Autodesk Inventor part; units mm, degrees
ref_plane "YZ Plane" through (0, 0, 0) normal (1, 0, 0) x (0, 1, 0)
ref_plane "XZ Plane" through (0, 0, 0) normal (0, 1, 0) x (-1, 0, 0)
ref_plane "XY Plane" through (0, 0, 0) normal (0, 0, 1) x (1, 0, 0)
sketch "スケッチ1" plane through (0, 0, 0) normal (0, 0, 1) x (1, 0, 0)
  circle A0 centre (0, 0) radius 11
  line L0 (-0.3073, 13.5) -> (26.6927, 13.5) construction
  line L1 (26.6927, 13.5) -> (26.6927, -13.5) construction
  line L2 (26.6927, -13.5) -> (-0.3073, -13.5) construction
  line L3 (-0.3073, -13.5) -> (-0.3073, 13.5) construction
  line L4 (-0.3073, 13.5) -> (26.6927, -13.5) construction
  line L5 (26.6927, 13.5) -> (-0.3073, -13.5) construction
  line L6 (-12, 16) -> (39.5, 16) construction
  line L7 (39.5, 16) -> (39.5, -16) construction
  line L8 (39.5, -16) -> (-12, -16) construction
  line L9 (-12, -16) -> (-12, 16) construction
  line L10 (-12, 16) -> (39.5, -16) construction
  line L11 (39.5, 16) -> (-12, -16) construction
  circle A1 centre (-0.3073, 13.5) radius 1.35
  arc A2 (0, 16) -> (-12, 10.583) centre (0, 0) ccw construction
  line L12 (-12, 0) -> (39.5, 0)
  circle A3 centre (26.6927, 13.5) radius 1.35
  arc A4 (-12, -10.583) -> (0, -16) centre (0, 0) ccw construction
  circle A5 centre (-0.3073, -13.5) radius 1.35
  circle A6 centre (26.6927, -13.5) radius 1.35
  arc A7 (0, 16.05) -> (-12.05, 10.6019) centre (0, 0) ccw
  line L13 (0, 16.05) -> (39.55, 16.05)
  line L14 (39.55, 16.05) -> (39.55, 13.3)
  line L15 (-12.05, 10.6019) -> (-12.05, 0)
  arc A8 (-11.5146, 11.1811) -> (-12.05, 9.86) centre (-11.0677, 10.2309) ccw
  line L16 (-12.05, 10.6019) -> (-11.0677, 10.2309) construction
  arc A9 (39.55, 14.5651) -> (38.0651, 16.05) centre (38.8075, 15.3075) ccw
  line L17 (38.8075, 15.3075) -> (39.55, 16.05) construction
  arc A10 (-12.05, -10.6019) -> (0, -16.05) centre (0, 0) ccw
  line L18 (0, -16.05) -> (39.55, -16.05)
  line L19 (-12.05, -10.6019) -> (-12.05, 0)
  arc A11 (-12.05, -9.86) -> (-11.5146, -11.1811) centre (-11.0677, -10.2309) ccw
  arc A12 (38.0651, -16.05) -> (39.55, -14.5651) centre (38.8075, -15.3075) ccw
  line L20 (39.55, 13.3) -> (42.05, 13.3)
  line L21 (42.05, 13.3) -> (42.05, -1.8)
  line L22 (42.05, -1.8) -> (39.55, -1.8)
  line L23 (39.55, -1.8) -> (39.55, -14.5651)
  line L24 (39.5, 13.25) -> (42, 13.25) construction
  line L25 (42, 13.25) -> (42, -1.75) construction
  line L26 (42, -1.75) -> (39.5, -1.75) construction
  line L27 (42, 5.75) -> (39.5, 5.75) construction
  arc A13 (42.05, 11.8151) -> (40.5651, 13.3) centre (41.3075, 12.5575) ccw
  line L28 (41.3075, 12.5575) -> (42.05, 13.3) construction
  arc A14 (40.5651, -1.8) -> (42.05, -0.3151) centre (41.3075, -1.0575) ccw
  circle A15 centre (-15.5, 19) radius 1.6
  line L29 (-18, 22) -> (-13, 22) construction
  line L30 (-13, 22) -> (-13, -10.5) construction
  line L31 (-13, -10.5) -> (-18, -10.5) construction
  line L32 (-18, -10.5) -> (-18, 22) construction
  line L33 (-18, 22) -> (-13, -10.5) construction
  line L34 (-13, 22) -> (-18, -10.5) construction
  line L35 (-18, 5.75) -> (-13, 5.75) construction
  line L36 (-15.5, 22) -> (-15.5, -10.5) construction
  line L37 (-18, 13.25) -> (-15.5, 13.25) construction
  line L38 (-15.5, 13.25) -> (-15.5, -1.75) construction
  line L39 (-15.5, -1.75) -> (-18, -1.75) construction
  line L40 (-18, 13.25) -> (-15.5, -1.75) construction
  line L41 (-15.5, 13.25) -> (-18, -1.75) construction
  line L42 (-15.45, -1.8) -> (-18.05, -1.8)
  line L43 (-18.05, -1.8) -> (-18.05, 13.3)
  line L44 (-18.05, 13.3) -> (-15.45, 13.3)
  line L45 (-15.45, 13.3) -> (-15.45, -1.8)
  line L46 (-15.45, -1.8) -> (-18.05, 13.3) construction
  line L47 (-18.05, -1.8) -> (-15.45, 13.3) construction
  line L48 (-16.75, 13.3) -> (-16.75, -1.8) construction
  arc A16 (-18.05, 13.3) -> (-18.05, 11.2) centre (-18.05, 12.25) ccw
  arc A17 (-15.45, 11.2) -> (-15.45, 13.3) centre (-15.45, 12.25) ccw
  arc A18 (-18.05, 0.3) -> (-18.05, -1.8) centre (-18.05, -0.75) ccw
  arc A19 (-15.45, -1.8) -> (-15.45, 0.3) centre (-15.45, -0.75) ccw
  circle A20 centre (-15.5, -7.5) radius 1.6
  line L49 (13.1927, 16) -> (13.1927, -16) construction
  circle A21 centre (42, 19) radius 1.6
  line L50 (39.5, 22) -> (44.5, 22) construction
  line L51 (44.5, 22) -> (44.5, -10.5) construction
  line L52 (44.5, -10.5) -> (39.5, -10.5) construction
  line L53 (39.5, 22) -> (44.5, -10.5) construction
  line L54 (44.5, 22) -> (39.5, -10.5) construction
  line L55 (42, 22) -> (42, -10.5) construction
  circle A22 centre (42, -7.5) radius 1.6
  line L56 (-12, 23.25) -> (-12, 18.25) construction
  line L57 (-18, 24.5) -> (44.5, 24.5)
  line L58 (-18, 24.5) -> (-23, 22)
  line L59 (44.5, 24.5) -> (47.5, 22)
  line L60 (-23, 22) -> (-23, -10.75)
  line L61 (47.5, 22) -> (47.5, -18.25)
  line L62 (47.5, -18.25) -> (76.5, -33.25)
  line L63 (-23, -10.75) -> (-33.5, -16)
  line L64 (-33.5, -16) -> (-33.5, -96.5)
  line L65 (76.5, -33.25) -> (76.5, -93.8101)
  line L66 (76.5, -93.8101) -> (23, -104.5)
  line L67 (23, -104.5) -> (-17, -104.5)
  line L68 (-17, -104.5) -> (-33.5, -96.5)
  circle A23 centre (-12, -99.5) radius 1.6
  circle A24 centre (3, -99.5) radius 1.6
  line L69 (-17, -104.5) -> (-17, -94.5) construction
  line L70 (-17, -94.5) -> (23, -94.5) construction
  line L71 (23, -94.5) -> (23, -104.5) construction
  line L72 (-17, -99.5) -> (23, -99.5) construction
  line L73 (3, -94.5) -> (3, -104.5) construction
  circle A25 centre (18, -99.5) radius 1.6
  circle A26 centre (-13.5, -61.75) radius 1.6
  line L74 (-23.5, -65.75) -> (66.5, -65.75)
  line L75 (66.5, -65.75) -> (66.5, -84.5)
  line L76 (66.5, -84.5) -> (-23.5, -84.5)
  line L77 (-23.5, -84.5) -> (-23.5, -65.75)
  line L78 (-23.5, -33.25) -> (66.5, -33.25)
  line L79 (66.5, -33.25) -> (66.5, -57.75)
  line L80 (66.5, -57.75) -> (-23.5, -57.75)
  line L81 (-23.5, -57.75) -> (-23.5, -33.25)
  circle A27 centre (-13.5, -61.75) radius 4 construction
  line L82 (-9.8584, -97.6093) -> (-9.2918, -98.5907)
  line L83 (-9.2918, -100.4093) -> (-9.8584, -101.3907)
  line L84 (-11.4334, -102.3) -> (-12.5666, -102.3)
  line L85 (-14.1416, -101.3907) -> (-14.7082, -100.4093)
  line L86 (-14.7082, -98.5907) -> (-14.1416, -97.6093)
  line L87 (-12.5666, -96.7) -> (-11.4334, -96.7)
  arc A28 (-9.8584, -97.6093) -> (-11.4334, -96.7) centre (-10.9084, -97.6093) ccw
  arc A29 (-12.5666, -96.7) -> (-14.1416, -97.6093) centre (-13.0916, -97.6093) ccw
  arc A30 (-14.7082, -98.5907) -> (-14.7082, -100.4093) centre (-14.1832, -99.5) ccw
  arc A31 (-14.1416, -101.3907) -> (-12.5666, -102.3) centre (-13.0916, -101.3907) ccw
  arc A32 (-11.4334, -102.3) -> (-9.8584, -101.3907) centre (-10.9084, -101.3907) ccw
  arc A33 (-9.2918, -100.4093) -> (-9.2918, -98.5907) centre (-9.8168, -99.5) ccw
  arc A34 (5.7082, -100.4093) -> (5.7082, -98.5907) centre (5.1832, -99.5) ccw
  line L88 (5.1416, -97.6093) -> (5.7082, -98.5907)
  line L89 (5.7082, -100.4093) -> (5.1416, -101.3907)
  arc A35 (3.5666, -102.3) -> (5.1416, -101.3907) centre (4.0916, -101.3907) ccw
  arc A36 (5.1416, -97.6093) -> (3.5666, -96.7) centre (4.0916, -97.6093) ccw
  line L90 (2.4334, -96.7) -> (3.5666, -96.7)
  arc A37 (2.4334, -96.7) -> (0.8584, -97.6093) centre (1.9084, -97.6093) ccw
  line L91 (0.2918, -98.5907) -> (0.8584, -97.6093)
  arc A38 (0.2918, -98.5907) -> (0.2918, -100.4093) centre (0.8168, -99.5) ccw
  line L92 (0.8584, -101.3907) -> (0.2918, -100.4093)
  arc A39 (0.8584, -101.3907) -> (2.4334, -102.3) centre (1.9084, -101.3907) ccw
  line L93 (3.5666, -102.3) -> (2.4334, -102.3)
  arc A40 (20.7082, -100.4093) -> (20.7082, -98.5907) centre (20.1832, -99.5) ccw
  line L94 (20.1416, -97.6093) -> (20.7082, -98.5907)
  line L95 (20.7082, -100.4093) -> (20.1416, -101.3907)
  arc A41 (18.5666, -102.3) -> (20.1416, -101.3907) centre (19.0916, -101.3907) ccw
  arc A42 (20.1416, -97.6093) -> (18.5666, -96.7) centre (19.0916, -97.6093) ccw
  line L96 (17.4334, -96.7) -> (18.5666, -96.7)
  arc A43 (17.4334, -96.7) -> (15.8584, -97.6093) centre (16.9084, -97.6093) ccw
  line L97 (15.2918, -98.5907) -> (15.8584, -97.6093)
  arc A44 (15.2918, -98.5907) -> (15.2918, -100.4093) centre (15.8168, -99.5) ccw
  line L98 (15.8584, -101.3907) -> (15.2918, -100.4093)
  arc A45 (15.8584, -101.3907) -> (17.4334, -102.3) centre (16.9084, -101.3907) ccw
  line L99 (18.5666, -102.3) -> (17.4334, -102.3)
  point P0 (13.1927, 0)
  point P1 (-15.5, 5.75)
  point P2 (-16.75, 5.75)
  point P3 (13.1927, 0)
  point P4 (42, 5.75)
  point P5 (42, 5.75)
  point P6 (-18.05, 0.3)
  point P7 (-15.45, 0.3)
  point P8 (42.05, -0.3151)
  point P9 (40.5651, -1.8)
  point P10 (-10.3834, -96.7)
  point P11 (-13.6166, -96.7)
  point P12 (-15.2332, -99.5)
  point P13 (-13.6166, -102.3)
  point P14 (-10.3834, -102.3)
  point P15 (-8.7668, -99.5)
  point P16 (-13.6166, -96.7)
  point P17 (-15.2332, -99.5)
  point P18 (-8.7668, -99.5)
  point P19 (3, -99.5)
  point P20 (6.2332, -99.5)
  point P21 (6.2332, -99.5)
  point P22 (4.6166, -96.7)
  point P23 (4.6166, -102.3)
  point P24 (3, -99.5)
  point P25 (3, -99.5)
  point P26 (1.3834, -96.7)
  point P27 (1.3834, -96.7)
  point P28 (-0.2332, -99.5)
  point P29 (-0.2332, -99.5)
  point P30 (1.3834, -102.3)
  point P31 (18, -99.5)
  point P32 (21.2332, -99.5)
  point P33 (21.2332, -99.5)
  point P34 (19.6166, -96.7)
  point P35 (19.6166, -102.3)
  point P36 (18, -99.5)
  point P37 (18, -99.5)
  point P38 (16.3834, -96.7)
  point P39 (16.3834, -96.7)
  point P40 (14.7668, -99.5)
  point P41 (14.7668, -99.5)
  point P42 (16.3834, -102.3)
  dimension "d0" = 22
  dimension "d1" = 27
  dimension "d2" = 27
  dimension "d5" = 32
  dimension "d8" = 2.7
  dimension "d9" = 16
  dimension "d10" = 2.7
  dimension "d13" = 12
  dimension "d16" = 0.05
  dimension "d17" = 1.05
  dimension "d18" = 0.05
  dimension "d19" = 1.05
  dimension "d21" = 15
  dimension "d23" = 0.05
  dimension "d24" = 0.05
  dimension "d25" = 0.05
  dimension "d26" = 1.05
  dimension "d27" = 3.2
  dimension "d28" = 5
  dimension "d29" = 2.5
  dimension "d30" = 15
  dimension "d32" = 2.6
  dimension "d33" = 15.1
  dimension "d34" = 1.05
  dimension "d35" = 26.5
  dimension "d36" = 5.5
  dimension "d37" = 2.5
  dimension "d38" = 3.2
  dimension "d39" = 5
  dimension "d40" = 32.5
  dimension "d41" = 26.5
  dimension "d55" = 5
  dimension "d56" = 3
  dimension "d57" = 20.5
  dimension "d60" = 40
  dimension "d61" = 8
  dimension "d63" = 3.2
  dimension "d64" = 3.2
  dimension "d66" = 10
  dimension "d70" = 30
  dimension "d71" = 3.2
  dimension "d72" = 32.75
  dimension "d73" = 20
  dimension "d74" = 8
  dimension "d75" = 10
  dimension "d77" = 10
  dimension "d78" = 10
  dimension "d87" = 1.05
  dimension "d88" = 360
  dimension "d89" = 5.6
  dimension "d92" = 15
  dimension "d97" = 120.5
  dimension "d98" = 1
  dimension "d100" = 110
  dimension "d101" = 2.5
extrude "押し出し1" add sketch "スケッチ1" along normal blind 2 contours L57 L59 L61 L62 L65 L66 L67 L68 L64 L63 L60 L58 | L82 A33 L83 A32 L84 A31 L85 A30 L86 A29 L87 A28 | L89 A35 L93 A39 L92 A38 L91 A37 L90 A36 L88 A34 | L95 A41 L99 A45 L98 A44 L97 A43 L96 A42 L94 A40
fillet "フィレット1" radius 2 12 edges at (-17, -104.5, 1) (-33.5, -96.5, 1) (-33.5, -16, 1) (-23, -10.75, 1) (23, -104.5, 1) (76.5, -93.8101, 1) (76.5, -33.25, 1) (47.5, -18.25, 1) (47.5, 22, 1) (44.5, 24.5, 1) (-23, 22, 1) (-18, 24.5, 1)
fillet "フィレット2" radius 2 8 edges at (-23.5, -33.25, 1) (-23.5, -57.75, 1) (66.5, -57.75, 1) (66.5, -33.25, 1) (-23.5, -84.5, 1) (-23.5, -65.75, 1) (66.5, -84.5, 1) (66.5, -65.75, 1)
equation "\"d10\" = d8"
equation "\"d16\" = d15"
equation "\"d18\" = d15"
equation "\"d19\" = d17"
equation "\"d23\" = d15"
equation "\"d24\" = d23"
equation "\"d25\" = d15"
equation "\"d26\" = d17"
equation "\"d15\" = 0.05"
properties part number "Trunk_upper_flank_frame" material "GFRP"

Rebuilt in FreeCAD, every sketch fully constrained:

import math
import FreeCAD as App
import Part
import Sketcher

V = App.Vector
Q = App.Units.Quantity


def edges_at(feature, points):
    """Names of the edges that pass closest to the given points."""
    edges = feature.Shape.Edges
    near = lambda p: min(range(len(edges)), key=lambda i: edges[i].distToShape(Part.Vertex(*p))[0])
    return sorted({f"Edge{near(p) + 1}" for p in points})


def add_polygon(sketch, points):
    """Adds a closed chain of lines whose ends are joined by coincident constraints."""
    first, n = sketch.GeometryCount, len(points)
    for a, b in zip(points, points[1:] + points[:1]):
        sketch.addGeometry(Part.LineSegment(App.Vector(*a, 0), App.Vector(*b, 0)), False)
    for i in range(n):
        sketch.addConstraint(Sketcher.Constraint("Coincident", first + i, 2, first + (i + 1) % n, 1))

doc = App.newDocument("Part")
body = doc.addObject("PartDesign::Body", "Body")

# Sketch on XY plane
sketch1 = doc.addObject("Sketcher::SketchObject", "Sketch")
body.addObject(sketch1)
sketch1.AttachmentSupport = (doc.XY_Plane, [""])
sketch1.MapMode = "FlatFace"
add_polygon(sketch1, [(44.5, 24.5), (-18, 24.5), (-23, 22), (-23, -10.75), (-33.5, -16), (-33.5, -96.5), (-17, -104.5), (23, -104.5), (76.5, -93.8101), (76.5, -33.25), (47.5, -18.25), (47.5, 22)])  # lines 0-11
sketch1.addGeometry(Part.Circle(V(-13.5, -61.75, 0), V(0, 0, 1), 1.6), False)  # 12
add_polygon(sketch1, [(-23.5, -84.5), (-23.5, -65.75), (66.5, -65.75), (66.5, -84.5)])  # lines 13-16
add_polygon(sketch1, [(-23.5, -57.75), (-23.5, -33.25), (66.5, -33.25), (66.5, -57.75)])  # lines 17-20
sketch1.addGeometry(Part.Circle(V(-15.5, -7.5, 0), V(0, 0, 1), 1.6), False)  # 21
sketch1.addGeometry(Part.ArcOfCircle(Part.Circle(V(-15.45, -0.75, 0), V(0, 0, 1), 1.05), math.radians(-90), math.radians(90)), False)  # 22
sketch1.addGeometry(Part.LineSegment(V(-15.45, -1.8, 0), V(-18.05, -1.8, 0)), False)  # 23
sketch1.addGeometry(Part.ArcOfCircle(Part.Circle(V(-18.05, -0.75, 0), V(0, 0, 1), 1.05), math.radians(90), math.radians(270)), False)  # 24
sketch1.addGeometry(Part.LineSegment(V(-18.05, 0.3, 0), V(-18.05, 11.2, 0)), False)  # 25
sketch1.addGeometry(Part.ArcOfCircle(Part.Circle(V(-18.05, 12.25, 0), V(0, 0, 1), 1.05), math.radians(90), math.radians(270)), False)  # 26
sketch1.addGeometry(Part.LineSegment(V(-18.05, 13.3, 0), V(-15.45, 13.3, 0)), False)  # 27
sketch1.addGeometry(Part.ArcOfCircle(Part.Circle(V(-15.45, 12.25, 0), V(0, 0, 1), 1.05), math.radians(-90), math.radians(90)), False)  # 28
sketch1.addGeometry(Part.LineSegment(V(-15.45, 11.2, 0), V(-15.45, 0.3, 0)), False)  # 29
sketch1.addGeometry(Part.Circle(V(-15.5, 19, 0), V(0, 0, 1), 1.6), False)  # 30
sketch1.addGeometry(Part.ArcOfCircle(Part.Circle(V(0, 0, 0), V(0, 0, 1), 16.050009), math.radians(90), math.radians(135.841867)), False)  # 31
sketch1.addGeometry(Part.LineSegment(V(0, 16.05, 0), V(38.0651, 16.05, 0)), False)  # 32
sketch1.addGeometry(Part.ArcOfCircle(Part.Circle(V(38.8075, 15.3075, 0), V(0, 0, 1), 1.049983), math.radians(-44.996141), math.radians(134.996141)), False)  # 33
sketch1.addGeometry(Part.LineSegment(V(39.55, 14.5651, 0), V(39.55, 13.3, 0)), False)  # 34
sketch1.addGeometry(Part.LineSegment(V(39.55, 13.3, 0), V(40.5651, 13.3, 0)), False)  # 35
sketch1.addGeometry(Part.ArcOfCircle(Part.Circle(V(41.3075, 12.5575, 0), V(0, 0, 1), 1.049983), math.radians(-44.996141), math.radians(134.996141)), False)  # 36
sketch1.addGeometry(Part.LineSegment(V(42.05, 11.8151, 0), V(42.05, -0.3151, 0)), False)  # 37
sketch1.addGeometry(Part.ArcOfCircle(Part.Circle(V(41.3075, -1.0575, 0), V(0, 0, 1), 1.049983), math.radians(-134.996141), math.radians(44.996141)), False)  # 38
sketch1.addGeometry(Part.LineSegment(V(40.5651, -1.8, 0), V(39.55, -1.8, 0)), False)  # 39
sketch1.addGeometry(Part.LineSegment(V(39.55, -1.8, 0), V(39.55, -14.5651, 0)), False)  # 40
sketch1.addGeometry(Part.ArcOfCircle(Part.Circle(V(38.8075, -15.3075, 0), V(0, 0, 1), 1.049983), math.radians(-134.996141), math.radians(44.996141)), False)  # 41
sketch1.addGeometry(Part.LineSegment(V(38.0651, -16.05, 0), V(0, -16.05, 0)), False)  # 42
sketch1.addGeometry(Part.ArcOfCircle(Part.Circle(V(0, 0, 0), V(0, 0, 1), 16.05), math.radians(-135.841867), math.radians(-90)), False)  # 43
sketch1.addGeometry(Part.ArcOfCircle(Part.Circle(V(-11.0677, -10.2309, 0), V(0, 0, 1), 1.049991), math.radians(159.314305), math.radians(244.811364)), False)  # 44
sketch1.addGeometry(Part.LineSegment(V(-12.05, -9.86, 0), V(-12.05, 9.86, 0)), False)  # 45
sketch1.addGeometry(Part.ArcOfCircle(Part.Circle(V(-11.0677, 10.2309, 0), V(0, 0, 1), 1.050047), math.radians(115.188636), math.radians(200.685695)), False)  # 46
sketch1.addGeometry(Part.Circle(V(42, -7.5, 0), V(0, 0, 1), 1.6), False)  # 47
sketch1.addGeometry(Part.Circle(V(42, 19, 0), V(0, 0, 1), 1.6), False)  # 48
sketch1.addGeometry(Part.Circle(V(-12, -99.5, 0), V(0, 0, 1), 1.6), False)  # 49
sketch1.addGeometry(Part.Circle(V(3, -99.5, 0), V(0, 0, 1), 1.6), False)  # 50
sketch1.addGeometry(Part.Circle(V(18, -99.5, 0), V(0, 0, 1), 1.6), False)  # 51
sketch1.addConstraint([
    Sketcher.Constraint("Tangent", 22, 1, 23, 1),
    Sketcher.Constraint("Tangent", 23, 2, 24, 2),
    Sketcher.Constraint("Coincident", 24, 1, 25, 1),
    Sketcher.Constraint("Coincident", 25, 2, 26, 2),
    Sketcher.Constraint("Tangent", 26, 1, 27, 1),
    Sketcher.Constraint("Tangent", 27, 2, 28, 2),
    Sketcher.Constraint("Coincident", 28, 1, 29, 1),
    Sketcher.Constraint("Coincident", 29, 2, 22, 2),
    Sketcher.Constraint("Tangent", 31, 1, 32, 1),
    Sketcher.Constraint("Coincident", 32, 2, 33, 2),
    Sketcher.Constraint("Coincident", 33, 1, 34, 1),
    Sketcher.Constraint("Coincident", 34, 2, 35, 1),
    Sketcher.Constraint("Coincident", 35, 2, 36, 2),
    Sketcher.Constraint("Coincident", 36, 1, 37, 1),
    Sketcher.Constraint("Coincident", 37, 2, 38, 2),
    Sketcher.Constraint("Coincident", 38, 1, 39, 1),
    Sketcher.Constraint("Coincident", 39, 2, 40, 1),
    Sketcher.Constraint("Coincident", 40, 2, 41, 2),
    Sketcher.Constraint("Coincident", 41, 1, 42, 1),
    Sketcher.Constraint("Tangent", 42, 2, 43, 2),
    Sketcher.Constraint("Coincident", 43, 1, 44, 2),
    Sketcher.Constraint("Coincident", 44, 1, 45, 1),
    Sketcher.Constraint("Coincident", 45, 2, 46, 2),
    Sketcher.Constraint("Coincident", 46, 1, 31, 2),
    Sketcher.Constraint("Horizontal", 0),
    Sketcher.Constraint("Vertical", 2),
    Sketcher.Constraint("Vertical", 4),
    Sketcher.Constraint("Horizontal", 6),
    Sketcher.Constraint("Vertical", 8),
    Sketcher.Constraint("Vertical", 10),
    Sketcher.Constraint("Vertical", 13),
    Sketcher.Constraint("Horizontal", 14),
    Sketcher.Constraint("Vertical", 15),
    Sketcher.Constraint("Horizontal", 16),
    Sketcher.Constraint("Vertical", 17),
    Sketcher.Constraint("Horizontal", 18),
    Sketcher.Constraint("Vertical", 19),
    Sketcher.Constraint("Horizontal", 20),
    Sketcher.Constraint("Horizontal", 23),
    Sketcher.Constraint("Vertical", 25),
    Sketcher.Constraint("Horizontal", 27),
    Sketcher.Constraint("Vertical", 29),
    Sketcher.Constraint("Horizontal", 32),
    Sketcher.Constraint("Vertical", 34),
    Sketcher.Constraint("Horizontal", 35),
    Sketcher.Constraint("Vertical", 37),
    Sketcher.Constraint("Horizontal", 39),
    Sketcher.Constraint("Vertical", 40),
    Sketcher.Constraint("Horizontal", 42),
    Sketcher.Constraint("Vertical", 45),
    Sketcher.Constraint("Coincident", 31, 3, -1, 1),
    Sketcher.Constraint("Coincident", 43, 3, -1, 1),
    Sketcher.Constraint("Equal", 12, 21),
    Sketcher.Constraint("Equal", 22, 24),
    Sketcher.Constraint("Equal", 24, 26),
    Sketcher.Constraint("Equal", 26, 28),
    Sketcher.Constraint("Equal", 21, 30),
    Sketcher.Constraint("Equal", 28, 33),
    Sketcher.Constraint("Equal", 33, 36),
    Sketcher.Constraint("Equal", 36, 38),
    Sketcher.Constraint("Equal", 38, 41),
    Sketcher.Constraint("Equal", 31, 43),
    Sketcher.Constraint("Equal", 41, 44),
    Sketcher.Constraint("Equal", 44, 46),
    Sketcher.Constraint("Equal", 30, 47),
    Sketcher.Constraint("Equal", 47, 48),
    Sketcher.Constraint("Equal", 48, 49),
    Sketcher.Constraint("Equal", 49, 50),
    Sketcher.Constraint("Equal", 50, 51),
    Sketcher.Constraint("Symmetric", 33, 3, 41, 3, -1),
    Sketcher.Constraint("Symmetric", 44, 3, 46, 3, -1),
    Sketcher.Constraint("Parallel", 1, 3),
    Sketcher.Constraint("Horizontal", 21, 3, 47, 3),
    Sketcher.Constraint("Horizontal", 30, 3, 48, 3),
    Sketcher.Constraint("Horizontal", 49, 3, 50, 3),
    Sketcher.Constraint("Horizontal", 50, 3, 51, 3),
    Sketcher.Constraint("Horizontal", 1, 2, 10, 2),
    Sketcher.Constraint("Horizontal", 8, 2, 17, 2),
    Sketcher.Constraint("Horizontal", 27, 2, 34, 2),
    Sketcher.Constraint("Horizontal", 23, 2, 38, 1),
    Sketcher.Constraint("Vertical", 24, 3, 26, 3),
    Sketcher.Constraint("Vertical", 22, 3, 28, 3),
    Sketcher.Constraint("Vertical", 21, 3, 30, 3),
    Sketcher.Constraint("Vertical", 36, 3, 38, 3),
    Sketcher.Constraint("Vertical", 47, 3, 48, 3),
    Sketcher.Constraint("Vertical", 16, 2, 17, 2),
    Sketcher.Constraint("Vertical", 15, 2, 18, 2),
    Sketcher.Constraint("Vertical", 23, 2, 24, 1),
    Sketcher.Constraint("Vertical", 27, 2, 28, 1),
    Sketcher.Constraint("Vertical", 35, 2, 38, 1),
    Sketcher.Constraint("Vertical", 34, 2, 39, 2),
    Sketcher.Constraint("Diameter", 12, 3.2),
    Sketcher.Constraint("DistanceX", 6, 1, 6, 2, 40.0),
    Sketcher.Constraint("Radius", 22, 1.05),
    Sketcher.Constraint("DistanceX", 23, 2, 23, 1, 2.6),
    Sketcher.Constraint("DistanceX", 49, 3, -1, 1, 12.0),
    Sketcher.Constraint("DistanceX", -1, 1, 50, 3, 3.0),
    Sketcher.Constraint("DistanceY", -1, 1, 1, 2, 22.0),
    Sketcher.Constraint("DistanceY", 3, 2, -1, 1, 16.0),
    Sketcher.Constraint("DistanceY", 2, 2, 2, 1, 32.75),
    Sketcher.Constraint("DistanceX", 14, 1, 14, 2, 90.0),
    Sketcher.Constraint("Radius", 31, 16.05),
    Sketcher.Constraint("DistanceX", 0, 2, 0, 1, 62.5),
    Sketcher.Constraint("DistanceY", 4, 2, 4, 1, 80.5),
    Sketcher.Constraint("DistanceY", 17, 1, 17, 2, 24.5),
    Sketcher.Constraint("DistanceY", 25, 1, 25, 2, 10.9),
    Sketcher.Constraint("DistanceY", -1, 1, 30, 3, 19.0),
    Sketcher.Constraint("DistanceX", -1, 1, 47, 3, 42.0),
    Sketcher.Constraint("DistanceX", -1, 1, 51, 3, 18.0),
    Sketcher.Constraint("DistanceX", 0, 2, -1, 1, 18.0),
    Sketcher.Constraint("DistanceX", 1, 2, -1, 1, 23.0),
    Sketcher.Constraint("DistanceX", 5, 2, -1, 1, 17.0),
    Sketcher.Constraint("Angle", 7, Q("11.2995 deg")),
    Sketcher.Constraint("DistanceY", 8, 1, 8, 2, 60.56),
    Sketcher.Constraint("DistanceY", 10, 1, 10, 2, 40.25),
    Sketcher.Constraint("DistanceY", 13, 1, 13, 2, 18.75),
    Sketcher.Constraint("DistanceY", 45, 1, 45, 2, 19.72),
    Sketcher.Constraint("DistanceX", 12, 3, -1, 1, 13.5),
    Sketcher.Constraint("DistanceX", 21, 3, -1, 1, 15.5),
    Sketcher.Constraint("DistanceY", 21, 3, -1, 1, 7.5),
    Sketcher.Constraint("DistanceY", 49, 3, -1, 1, 99.5),
    Sketcher.Constraint("DistanceY", -1, 1, 0, 2, 24.5),
    Sketcher.Constraint("DistanceY", 5, 2, -1, 1, 104.5),
    Sketcher.Constraint("DistanceX", -1, 1, 7, 2, 76.5),
    Sketcher.Constraint("DistanceX", -1, 1, 9, 2, 47.5),
    Sketcher.Constraint("DistanceX", 13, 2, -1, 1, 23.5),
    Sketcher.Constraint("DistanceY", 15, 2, -1, 1, 84.5),
    Sketcher.Constraint("DistanceY", 22, 1, -1, 1, 1.8),
    Sketcher.Constraint("DistanceX", 32, 1, 32, 2, 38.065),
    Sketcher.Constraint("DistanceX", 35, 1, 35, 2, 1.015),
    Sketcher.Constraint("DistanceY", 34, 2, 34, 1, 1.265),
    Sketcher.Constraint("DistanceY", 12, 3, -1, 1, 61.75),
    Sketcher.Constraint("DistanceX", 22, 3, -1, 1, 15.45),
    Sketcher.Constraint("DistanceX", -1, 1, 36, 1, 42.05),
    Sketcher.Constraint("DistanceX", 44, 1, -1, 1, 12.05),
    Sketcher.Constraint("DistanceY", 44, 3, -1, 1, 10.231),
    Sketcher.Constraint("DistanceX", -1, 1, 33, 3, 38.8075),
    Sketcher.Constraint("DistanceX", -1, 1, 36, 3, 41.3075),
])
pad1 = doc.addObject("PartDesign::Pad", "Pad")
body.addObject(pad1)
pad1.Profile = sketch1
pad1.Length = 2
doc.recompute()

fillet = doc.addObject("PartDesign::Fillet", "Fillet")
body.addObject(fillet)
fillet.Base = (pad1, edges_at(pad1, [
    (-17, -104.5, 1),
    (-33.5, -96.5, 1),
    (-33.5, -16, 1),
    (-23, -10.75, 1),
    (23, -104.5, 1),
    (76.5, -93.81, 1),
    (76.5, -33.25, 1),
    (47.5, -18.25, 1),
    (47.5, 22, 1),
    (44.5, 24.5, 1),
    (-23, 22, 1),
    (-18, 24.5, 1),
]))
fillet.Radius = 2
doc.recompute()

fillet2 = doc.addObject("PartDesign::Fillet", "Fillet001")
body.addObject(fillet2)
fillet2.Base = (fillet, edges_at(fillet, [
    (-23.5, -33.25, 1),
    (-23.5, -57.75, 1),
    (66.5, -57.75, 1),
    (66.5, -33.25, 1),
    (-23.5, -84.5, 1),
    (-23.5, -65.75, 1),
    (66.5, -84.5, 1),
    (66.5, -65.75, 1),
]))
fillet2.Radius = 2

doc.recompute()
